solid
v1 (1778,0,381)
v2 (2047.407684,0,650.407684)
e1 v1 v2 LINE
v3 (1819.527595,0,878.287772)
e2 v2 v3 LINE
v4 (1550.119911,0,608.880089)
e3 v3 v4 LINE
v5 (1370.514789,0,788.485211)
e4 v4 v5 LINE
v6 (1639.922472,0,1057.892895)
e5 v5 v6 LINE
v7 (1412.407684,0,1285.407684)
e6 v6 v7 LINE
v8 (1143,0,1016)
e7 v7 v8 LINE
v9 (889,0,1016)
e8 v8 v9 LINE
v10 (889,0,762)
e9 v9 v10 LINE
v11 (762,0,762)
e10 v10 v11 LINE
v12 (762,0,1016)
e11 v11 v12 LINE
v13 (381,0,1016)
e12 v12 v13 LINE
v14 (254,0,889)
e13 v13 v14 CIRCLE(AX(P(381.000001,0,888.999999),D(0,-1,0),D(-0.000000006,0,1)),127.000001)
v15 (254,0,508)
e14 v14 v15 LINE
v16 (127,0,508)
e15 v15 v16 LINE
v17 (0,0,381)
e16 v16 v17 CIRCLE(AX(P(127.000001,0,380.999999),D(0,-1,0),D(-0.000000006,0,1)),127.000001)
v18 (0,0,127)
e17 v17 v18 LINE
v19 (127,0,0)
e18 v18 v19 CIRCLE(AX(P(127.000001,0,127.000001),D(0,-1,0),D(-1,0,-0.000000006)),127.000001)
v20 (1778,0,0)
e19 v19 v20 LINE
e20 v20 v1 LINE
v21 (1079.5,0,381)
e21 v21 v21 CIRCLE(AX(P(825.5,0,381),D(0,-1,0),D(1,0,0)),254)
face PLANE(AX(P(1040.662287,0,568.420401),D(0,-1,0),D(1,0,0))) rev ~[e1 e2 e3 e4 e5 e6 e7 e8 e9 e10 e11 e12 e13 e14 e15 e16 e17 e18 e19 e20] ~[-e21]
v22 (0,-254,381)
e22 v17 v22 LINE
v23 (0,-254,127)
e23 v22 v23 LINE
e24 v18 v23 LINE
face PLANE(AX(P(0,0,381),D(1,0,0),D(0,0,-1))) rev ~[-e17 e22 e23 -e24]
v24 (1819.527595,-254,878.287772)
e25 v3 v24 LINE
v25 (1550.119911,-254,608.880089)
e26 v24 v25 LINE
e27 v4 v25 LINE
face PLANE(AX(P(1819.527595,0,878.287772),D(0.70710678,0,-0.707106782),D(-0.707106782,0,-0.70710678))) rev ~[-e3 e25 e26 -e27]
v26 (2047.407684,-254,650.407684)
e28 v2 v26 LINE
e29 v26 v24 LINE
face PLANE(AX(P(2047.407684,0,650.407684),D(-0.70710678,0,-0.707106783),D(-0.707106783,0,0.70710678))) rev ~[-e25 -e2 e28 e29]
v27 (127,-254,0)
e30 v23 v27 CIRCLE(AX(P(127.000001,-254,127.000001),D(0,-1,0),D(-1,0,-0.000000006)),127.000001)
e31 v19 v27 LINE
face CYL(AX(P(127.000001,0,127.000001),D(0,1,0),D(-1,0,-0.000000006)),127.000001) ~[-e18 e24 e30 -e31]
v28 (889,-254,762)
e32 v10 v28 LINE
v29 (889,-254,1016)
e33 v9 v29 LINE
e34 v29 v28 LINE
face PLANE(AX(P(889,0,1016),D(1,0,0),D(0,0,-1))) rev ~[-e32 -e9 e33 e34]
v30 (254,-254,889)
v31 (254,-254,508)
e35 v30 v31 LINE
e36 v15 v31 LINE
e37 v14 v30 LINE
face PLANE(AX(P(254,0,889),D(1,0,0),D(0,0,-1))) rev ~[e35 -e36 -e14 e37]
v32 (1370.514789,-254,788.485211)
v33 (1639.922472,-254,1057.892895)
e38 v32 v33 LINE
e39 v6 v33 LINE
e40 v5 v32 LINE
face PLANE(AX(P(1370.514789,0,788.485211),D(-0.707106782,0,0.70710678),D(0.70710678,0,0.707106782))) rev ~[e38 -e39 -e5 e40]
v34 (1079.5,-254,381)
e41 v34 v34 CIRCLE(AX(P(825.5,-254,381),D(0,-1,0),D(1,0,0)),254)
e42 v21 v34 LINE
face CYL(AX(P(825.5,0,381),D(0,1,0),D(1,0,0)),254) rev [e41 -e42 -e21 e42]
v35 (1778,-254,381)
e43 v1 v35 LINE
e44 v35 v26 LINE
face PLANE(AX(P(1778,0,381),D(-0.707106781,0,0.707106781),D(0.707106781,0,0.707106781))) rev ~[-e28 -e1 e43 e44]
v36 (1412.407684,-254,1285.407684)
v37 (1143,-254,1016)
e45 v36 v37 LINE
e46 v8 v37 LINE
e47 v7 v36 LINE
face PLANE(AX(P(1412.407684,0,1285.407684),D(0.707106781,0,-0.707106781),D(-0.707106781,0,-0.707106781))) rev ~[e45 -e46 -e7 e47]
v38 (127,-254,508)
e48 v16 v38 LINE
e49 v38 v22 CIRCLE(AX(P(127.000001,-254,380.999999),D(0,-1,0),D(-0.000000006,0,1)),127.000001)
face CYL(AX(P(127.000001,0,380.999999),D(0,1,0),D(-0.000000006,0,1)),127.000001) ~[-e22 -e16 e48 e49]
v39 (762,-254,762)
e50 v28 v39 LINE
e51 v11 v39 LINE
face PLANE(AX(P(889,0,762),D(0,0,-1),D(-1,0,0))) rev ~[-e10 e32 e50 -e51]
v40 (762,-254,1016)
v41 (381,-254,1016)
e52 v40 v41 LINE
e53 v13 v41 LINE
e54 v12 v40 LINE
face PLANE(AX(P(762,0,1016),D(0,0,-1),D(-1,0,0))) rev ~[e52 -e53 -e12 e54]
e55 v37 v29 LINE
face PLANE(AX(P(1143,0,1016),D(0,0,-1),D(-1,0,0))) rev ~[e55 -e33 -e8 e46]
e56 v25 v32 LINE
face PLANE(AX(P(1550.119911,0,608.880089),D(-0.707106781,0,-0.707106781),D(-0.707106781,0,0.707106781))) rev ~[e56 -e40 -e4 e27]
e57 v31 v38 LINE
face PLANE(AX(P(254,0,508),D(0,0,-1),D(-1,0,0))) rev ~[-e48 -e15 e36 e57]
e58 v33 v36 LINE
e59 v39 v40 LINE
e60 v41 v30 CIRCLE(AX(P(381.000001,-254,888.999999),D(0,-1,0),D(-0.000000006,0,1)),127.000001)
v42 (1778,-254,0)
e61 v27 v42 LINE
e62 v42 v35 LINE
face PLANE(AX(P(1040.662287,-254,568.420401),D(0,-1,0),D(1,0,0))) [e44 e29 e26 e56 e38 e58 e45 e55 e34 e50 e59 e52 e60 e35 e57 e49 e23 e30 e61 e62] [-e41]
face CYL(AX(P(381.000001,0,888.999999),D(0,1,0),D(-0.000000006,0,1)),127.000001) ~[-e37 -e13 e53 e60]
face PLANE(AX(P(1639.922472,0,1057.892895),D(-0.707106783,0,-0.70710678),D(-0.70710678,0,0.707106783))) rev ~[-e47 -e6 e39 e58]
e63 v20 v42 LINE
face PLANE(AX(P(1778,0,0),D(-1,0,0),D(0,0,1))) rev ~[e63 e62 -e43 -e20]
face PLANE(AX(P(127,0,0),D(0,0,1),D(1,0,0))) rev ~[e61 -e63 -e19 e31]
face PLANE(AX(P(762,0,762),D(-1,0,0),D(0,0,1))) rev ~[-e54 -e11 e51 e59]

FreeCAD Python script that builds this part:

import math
import FreeCAD as App
import Part
import Sketcher
Q = App.Units.Quantity

doc = App.newDocument("Part")
body = doc.addObject("PartDesign::Body", "Body")

# Sketch on XZ plane
sketch1 = body.newObject("Sketcher::SketchObject", "Sketch")
sketch1.AttachmentSupport = (doc.getObject("XZ_Plane"), [""])
sketch1.MapMode = "FlatFace"
sketch1.addGeometry([
    Part.LineSegment(App.Vector(0, 381, 0), App.Vector(0, 127, 0)),  # 0
    Part.ArcOfCircle(Part.Circle(App.Vector(127, 127, 0), App.Vector(0, 0, 1), 127), math.radians(-180), math.radians(-90)),  # 1
    Part.LineSegment(App.Vector(127, 0, 0), App.Vector(1778, 0, 0)),  # 2
    Part.LineSegment(App.Vector(1778, 0, 0), App.Vector(1778, 381, 0)),  # 3
    Part.LineSegment(App.Vector(1778, 381, 0), App.Vector(2047, 650, 0)),  # 4
    Part.LineSegment(App.Vector(2047, 650, 0), App.Vector(1820, 878, 0)),  # 5
    Part.LineSegment(App.Vector(1820, 878, 0), App.Vector(1550, 609, 0)),  # 6
    Part.LineSegment(App.Vector(1550, 609, 0), App.Vector(1371, 788, 0)),  # 7
    Part.LineSegment(App.Vector(1371, 788, 0), App.Vector(1640, 1058, 0)),  # 8
    Part.LineSegment(App.Vector(1640, 1058, 0), App.Vector(1412, 1285, 0)),  # 9
    Part.LineSegment(App.Vector(1412, 1285, 0), App.Vector(1143, 1016, 0)),  # 10
    Part.LineSegment(App.Vector(1143, 1016, 0), App.Vector(889, 1016, 0)),  # 11
    Part.LineSegment(App.Vector(889, 1016, 0), App.Vector(889, 762, 0)),  # 12
    Part.LineSegment(App.Vector(889, 762, 0), App.Vector(762, 762, 0)),  # 13
    Part.LineSegment(App.Vector(762, 762, 0), App.Vector(762, 1016, 0)),  # 14
    Part.LineSegment(App.Vector(762, 1016, 0), App.Vector(381, 1016, 0)),  # 15
    Part.ArcOfCircle(Part.Circle(App.Vector(381, 889, 0), App.Vector(0, 0, 1), 127), math.radians(90), math.radians(180)),  # 16
    Part.LineSegment(App.Vector(254, 889, 0), App.Vector(254, 508, 0)),  # 17
    Part.LineSegment(App.Vector(254, 508, 0), App.Vector(127, 508, 0)),  # 18
    Part.ArcOfCircle(Part.Circle(App.Vector(127, 381, 0), App.Vector(0, 0, 1), 127), math.radians(90), math.radians(180)),  # 19
    Part.Circle(App.Vector(826, 381, 0), App.Vector(0, 0, 1), 254),  # 20
], False)
sketch1.addConstraint([
    Sketcher.Constraint("Tangent", 0, 2, 1, 1),
    Sketcher.Constraint("Tangent", 1, 2, 2, 1),
    Sketcher.Constraint("Coincident", 2, 2, 3, 1),
    Sketcher.Constraint("Coincident", 3, 2, 4, 1),
    Sketcher.Constraint("Coincident", 4, 2, 5, 1),
    Sketcher.Constraint("Coincident", 5, 2, 6, 1),
    Sketcher.Constraint("Coincident", 6, 2, 7, 1),
    Sketcher.Constraint("Coincident", 7, 2, 8, 1),
    Sketcher.Constraint("Coincident", 8, 2, 9, 1),
    Sketcher.Constraint("Coincident", 9, 2, 10, 1),
    Sketcher.Constraint("Coincident", 10, 2, 11, 1),
    Sketcher.Constraint("Coincident", 11, 2, 12, 1),
    Sketcher.Constraint("Coincident", 12, 2, 13, 1),
    Sketcher.Constraint("Coincident", 13, 2, 14, 1),
    Sketcher.Constraint("Coincident", 14, 2, 15, 1),
    Sketcher.Constraint("Tangent", 15, 2, 16, 1),
    Sketcher.Constraint("Tangent", 16, 2, 17, 1),
    Sketcher.Constraint("Coincident", 17, 2, 18, 1),
    Sketcher.Constraint("Tangent", 18, 2, 19, 1),
    Sketcher.Constraint("Tangent", 19, 2, 0, 1),
    Sketcher.Constraint("Vertical", 0),
    Sketcher.Constraint("Horizontal", 2),
    Sketcher.Constraint("Vertical", 3),
    Sketcher.Constraint("Horizontal", 11),
    Sketcher.Constraint("Vertical", 12),
    Sketcher.Constraint("Horizontal", 13),
    Sketcher.Constraint("Vertical", 14),
    Sketcher.Constraint("Horizontal", 15),
    Sketcher.Constraint("Vertical", 17),
    Sketcher.Constraint("Horizontal", 18),
    Sketcher.Constraint("Equal", 1, 16),
    Sketcher.Constraint("Equal", 16, 19),
    Sketcher.Constraint("PointOnObject", 0, 2, -2),
    Sketcher.Constraint("PointOnObject", 1, 2, -1),
    Sketcher.Constraint("Perpendicular", 4, 5),
    Sketcher.Constraint("Perpendicular", 5, 6),
    Sketcher.Constraint("Perpendicular", 6, 7),
    Sketcher.Constraint("Perpendicular", 7, 8),
    Sketcher.Constraint("Perpendicular", 8, 9),
    Sketcher.Constraint("Perpendicular", 9, 10),
    Sketcher.Constraint("Horizontal", 19, 3, 20, 3),
    Sketcher.Constraint("Horizontal", 20, 3, 3, 2),
    Sketcher.Constraint("Horizontal", 11, 2, 14, 2),
    Sketcher.Constraint("Equal", 13, 18),
    Sketcher.Constraint("Equal", 11, 0),
    Sketcher.Constraint("Equal", 15, 3),
    Sketcher.Constraint("Equal", 0, 12),
    Sketcher.Constraint("Equal", 3, 17),
    Sketcher.Constraint("Equal", 4, 6),
    Sketcher.Constraint("Equal", 6, 8),
    Sketcher.Constraint("Equal", 8, 10),
    Sketcher.Constraint("Diameter", 20, Q("20 in")),
    Sketcher.Constraint("Radius", 1, Q("5 in")),
    Sketcher.Constraint("DistanceX", 2, 1, 2, 2, Q("65 in")),
    Sketcher.Constraint("DistanceX", 11, 2, 11, 1, Q("10 in")),
    Sketcher.Constraint("DistanceX", 13, 2, 13, 1, Q("5 in")),
    Sketcher.Constraint("Distance", 4, Q("15 in")),
    Sketcher.Constraint("Distance", 7, Q("10 in")),
    Sketcher.Constraint("DistanceX", -1, 1, 20, 3, Q("32.5 in")),
    Sketcher.Constraint("Distance", 9, Q("12.6675 in")),
])
pad1 = body.newObject("PartDesign::Pad", "Pad")
pad1.Profile = sketch1
pad1.Length = Q("10 in")

doc.recompute()
